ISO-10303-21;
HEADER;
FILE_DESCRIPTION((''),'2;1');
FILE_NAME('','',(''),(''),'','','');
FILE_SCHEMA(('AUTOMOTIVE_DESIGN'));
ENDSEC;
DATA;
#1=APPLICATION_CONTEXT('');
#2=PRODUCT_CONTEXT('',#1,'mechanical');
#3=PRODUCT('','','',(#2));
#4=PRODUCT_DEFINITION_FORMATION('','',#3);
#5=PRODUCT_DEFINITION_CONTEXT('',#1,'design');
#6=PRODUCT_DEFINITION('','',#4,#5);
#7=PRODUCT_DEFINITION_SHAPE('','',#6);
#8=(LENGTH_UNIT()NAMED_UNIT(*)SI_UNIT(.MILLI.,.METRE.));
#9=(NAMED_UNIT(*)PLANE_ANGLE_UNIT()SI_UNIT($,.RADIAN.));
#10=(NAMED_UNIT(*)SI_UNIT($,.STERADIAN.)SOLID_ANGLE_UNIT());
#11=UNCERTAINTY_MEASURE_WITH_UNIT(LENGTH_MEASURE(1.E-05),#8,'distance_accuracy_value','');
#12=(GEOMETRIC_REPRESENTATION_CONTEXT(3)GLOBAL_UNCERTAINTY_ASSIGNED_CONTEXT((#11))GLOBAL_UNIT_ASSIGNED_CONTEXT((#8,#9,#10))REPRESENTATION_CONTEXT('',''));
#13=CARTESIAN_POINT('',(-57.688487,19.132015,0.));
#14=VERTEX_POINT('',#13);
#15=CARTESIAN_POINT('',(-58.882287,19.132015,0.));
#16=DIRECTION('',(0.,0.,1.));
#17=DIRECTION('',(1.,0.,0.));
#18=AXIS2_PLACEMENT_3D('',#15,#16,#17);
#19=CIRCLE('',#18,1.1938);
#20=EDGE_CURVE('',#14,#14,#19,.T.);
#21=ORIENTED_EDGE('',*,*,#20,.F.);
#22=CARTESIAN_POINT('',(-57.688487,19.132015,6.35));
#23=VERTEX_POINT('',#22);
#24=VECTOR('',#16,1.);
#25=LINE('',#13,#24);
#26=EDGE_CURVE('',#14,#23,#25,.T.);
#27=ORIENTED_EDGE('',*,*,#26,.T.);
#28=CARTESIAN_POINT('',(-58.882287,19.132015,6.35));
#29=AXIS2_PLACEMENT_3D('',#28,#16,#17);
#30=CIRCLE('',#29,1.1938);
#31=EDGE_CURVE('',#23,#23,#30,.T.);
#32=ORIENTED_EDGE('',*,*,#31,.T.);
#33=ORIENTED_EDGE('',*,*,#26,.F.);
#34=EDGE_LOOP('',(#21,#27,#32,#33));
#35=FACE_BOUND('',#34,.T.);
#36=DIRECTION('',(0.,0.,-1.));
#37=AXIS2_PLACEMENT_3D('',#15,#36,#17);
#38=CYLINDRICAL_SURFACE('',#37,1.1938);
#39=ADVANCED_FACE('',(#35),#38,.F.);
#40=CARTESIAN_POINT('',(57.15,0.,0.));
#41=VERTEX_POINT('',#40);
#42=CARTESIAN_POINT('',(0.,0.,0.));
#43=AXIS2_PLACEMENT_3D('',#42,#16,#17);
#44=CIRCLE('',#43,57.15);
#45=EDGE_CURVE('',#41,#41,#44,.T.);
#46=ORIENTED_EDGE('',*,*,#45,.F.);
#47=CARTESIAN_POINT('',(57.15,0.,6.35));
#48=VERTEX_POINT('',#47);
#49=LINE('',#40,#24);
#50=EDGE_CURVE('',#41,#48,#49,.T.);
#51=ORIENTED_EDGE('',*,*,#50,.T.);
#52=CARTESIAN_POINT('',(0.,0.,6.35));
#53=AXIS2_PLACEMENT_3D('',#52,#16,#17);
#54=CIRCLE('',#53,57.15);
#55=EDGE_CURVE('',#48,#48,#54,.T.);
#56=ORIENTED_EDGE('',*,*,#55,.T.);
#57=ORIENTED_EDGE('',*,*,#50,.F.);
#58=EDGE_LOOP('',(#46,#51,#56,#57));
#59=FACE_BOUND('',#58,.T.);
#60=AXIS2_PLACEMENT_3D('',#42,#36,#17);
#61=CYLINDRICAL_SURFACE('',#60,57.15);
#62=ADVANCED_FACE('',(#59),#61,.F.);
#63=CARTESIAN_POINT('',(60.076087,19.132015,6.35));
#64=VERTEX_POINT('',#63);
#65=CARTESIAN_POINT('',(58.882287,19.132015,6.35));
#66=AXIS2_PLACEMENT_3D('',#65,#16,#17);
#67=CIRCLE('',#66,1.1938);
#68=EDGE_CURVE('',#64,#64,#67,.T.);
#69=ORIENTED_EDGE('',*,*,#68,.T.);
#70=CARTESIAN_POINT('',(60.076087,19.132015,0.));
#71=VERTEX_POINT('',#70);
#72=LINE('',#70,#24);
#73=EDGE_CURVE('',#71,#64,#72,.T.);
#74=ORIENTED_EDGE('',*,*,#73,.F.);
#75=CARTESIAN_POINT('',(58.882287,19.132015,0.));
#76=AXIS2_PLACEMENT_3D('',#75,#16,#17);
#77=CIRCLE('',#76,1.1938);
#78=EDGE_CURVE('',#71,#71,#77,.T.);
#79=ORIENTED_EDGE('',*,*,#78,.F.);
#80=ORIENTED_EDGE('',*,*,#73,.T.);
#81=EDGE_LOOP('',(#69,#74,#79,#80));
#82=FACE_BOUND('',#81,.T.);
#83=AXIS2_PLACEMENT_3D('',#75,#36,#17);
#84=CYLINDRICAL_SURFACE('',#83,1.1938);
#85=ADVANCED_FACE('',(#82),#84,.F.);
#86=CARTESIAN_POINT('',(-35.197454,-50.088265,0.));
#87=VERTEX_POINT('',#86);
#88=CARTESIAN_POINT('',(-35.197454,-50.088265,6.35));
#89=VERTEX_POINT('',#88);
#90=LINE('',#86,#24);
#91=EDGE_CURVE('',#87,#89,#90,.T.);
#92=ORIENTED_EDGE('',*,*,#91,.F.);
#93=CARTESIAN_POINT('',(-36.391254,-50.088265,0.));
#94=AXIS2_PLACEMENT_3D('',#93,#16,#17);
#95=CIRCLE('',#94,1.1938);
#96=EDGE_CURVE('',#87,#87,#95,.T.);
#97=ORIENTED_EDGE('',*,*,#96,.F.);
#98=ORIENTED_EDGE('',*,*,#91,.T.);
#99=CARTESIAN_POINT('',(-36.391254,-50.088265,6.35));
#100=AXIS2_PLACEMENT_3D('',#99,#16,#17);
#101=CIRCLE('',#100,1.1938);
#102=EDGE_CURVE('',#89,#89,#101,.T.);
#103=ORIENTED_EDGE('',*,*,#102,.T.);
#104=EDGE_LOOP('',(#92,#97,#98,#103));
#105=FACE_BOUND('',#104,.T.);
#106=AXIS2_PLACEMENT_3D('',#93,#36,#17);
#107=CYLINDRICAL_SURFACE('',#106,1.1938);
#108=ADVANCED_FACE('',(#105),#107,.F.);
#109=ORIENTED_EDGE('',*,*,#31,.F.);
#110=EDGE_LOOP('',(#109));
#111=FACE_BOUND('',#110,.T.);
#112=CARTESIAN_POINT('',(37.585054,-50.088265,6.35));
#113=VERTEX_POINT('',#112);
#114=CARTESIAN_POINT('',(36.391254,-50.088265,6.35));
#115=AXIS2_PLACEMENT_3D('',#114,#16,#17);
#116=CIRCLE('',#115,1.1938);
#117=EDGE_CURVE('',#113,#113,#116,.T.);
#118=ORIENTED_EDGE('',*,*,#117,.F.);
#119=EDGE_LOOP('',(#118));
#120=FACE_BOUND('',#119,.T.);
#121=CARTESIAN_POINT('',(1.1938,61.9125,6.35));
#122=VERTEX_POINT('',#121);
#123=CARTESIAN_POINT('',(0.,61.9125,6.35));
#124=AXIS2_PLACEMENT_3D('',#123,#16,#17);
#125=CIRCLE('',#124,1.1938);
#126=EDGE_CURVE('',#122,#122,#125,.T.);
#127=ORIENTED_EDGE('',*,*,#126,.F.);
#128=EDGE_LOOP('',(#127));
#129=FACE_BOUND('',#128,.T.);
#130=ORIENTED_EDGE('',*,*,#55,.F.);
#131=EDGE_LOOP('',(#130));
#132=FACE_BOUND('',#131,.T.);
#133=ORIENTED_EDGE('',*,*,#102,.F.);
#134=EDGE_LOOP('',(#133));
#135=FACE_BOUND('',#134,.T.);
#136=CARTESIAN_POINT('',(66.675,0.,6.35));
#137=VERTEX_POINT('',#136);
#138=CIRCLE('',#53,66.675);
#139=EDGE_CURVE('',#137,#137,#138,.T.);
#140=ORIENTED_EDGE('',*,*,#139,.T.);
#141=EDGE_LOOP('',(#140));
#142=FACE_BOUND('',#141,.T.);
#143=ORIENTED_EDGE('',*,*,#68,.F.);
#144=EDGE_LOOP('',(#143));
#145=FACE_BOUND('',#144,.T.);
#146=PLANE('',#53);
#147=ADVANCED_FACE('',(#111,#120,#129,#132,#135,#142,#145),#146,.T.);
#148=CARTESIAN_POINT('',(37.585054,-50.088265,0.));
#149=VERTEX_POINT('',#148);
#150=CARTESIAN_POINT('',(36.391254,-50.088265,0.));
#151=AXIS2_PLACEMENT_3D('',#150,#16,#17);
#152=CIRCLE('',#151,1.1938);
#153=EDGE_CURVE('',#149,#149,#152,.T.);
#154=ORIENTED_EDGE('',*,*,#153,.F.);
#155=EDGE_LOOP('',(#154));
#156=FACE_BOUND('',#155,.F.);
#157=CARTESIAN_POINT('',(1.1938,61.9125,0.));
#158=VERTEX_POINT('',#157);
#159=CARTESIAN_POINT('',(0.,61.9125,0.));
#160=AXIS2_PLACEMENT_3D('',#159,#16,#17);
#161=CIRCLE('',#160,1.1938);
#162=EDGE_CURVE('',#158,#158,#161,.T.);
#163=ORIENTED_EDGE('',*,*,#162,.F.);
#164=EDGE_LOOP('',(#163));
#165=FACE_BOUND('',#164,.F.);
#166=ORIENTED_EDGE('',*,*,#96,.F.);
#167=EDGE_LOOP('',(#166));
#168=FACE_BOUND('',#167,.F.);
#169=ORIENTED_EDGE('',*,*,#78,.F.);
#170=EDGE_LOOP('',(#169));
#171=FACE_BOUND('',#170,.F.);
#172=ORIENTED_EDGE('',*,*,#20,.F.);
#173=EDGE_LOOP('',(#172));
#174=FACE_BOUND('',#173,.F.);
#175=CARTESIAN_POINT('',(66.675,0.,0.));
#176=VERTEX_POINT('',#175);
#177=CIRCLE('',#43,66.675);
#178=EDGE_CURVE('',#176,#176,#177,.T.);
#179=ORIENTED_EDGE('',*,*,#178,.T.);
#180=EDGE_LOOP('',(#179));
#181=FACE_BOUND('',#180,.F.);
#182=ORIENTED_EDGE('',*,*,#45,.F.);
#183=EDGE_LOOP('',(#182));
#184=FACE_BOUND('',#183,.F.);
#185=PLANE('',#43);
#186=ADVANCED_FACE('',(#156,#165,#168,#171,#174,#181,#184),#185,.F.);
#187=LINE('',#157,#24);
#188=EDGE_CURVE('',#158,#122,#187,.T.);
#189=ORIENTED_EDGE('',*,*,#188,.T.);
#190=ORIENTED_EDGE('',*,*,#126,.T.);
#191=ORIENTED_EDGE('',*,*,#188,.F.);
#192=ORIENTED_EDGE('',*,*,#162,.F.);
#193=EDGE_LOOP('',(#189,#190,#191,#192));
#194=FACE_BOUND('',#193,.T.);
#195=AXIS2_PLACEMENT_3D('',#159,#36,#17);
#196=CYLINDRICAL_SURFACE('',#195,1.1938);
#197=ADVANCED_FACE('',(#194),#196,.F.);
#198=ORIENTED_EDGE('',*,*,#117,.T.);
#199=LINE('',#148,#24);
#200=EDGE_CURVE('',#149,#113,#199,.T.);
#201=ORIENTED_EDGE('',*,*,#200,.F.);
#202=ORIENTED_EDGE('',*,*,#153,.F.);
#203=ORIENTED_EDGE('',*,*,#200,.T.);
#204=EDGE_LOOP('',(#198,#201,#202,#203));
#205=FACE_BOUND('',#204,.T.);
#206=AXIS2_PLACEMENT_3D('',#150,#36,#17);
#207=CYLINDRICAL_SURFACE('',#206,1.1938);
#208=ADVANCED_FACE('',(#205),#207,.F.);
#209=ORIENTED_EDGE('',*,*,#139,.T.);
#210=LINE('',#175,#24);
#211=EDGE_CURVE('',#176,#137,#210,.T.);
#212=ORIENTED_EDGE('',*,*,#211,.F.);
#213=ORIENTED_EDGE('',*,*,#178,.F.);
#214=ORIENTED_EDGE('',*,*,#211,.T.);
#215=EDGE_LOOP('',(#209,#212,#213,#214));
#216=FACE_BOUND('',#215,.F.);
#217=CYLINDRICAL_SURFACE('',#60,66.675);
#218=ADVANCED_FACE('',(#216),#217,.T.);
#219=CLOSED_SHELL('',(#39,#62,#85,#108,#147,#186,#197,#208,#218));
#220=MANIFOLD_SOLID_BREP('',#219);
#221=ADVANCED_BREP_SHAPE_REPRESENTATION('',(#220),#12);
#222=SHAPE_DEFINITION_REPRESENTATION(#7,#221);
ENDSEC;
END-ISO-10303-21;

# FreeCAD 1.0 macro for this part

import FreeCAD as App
import Part
import Sketcher
Q = App.Units.Quantity

doc = App.newDocument("Part")
params = doc.addObject("Spreadsheet::Sheet", "Params")
for row, (alias, value) in enumerate([
    ("sketch1_diameter", "4.5 in"),
    ("sketch1_diameter2", "5.25 in"),
    ("sketch1_diameter3", "0.094 in"),
    ("pad1_length", "0.25 in"),
], start=1):
    params.set(f"A{row}", alias)
    params.set(f"B{row}", "=" + value)
    params.setAlias(f"B{row}", alias)

body = doc.addObject("PartDesign::Body", "Body")

# Sketch on XY plane
sketch1 = body.newObject("Sketcher::SketchObject", "Sketch")
sketch1.AttachmentSupport = (doc.getObject("XY_Plane"), [""])
sketch1.MapMode = "FlatFace"
sketch1.addGeometry(Part.Circle(App.Vector(0, 0, 0), App.Vector(0, 0, 1), 66.7), False)
sketch1.addGeometry(Part.Circle(App.Vector(-36.4, -50.1, 0), App.Vector(0, 0, 1), 1.2), False)
sketch1.addGeometry(Part.Circle(App.Vector(0, 0, 0), App.Vector(0, 0, 1), 57.1), False)
sketch1.addGeometry(Part.Circle(App.Vector(36.4, -50.1, 0), App.Vector(0, 0, 1), 1.2), False)
sketch1.addGeometry(Part.Circle(App.Vector(-58.9, 19.1, 0), App.Vector(0, 0, 1), 1.2), False)
sketch1.addGeometry(Part.Circle(App.Vector(0, 61.9, 0), App.Vector(0, 0, 1), 1.2), False)
sketch1.addGeometry(Part.Circle(App.Vector(58.9, 19.1, 0), App.Vector(0, 0, 1), 1.2), False)
sketch1.addConstraint(Sketcher.Constraint("Coincident", 0, 3, -1, 1))
sketch1.addConstraint(Sketcher.Constraint("Coincident", 2, 3, -1, 1))
sketch1.addConstraint(Sketcher.Constraint("Equal", 1, 3))
sketch1.addConstraint(Sketcher.Constraint("Equal", 3, 4))
sketch1.addConstraint(Sketcher.Constraint("Equal", 4, 5))
sketch1.addConstraint(Sketcher.Constraint("Equal", 5, 6))
sketch1.addConstraint(Sketcher.Constraint("Symmetric", 1, 3, 3, 3, -2))
sketch1.addConstraint(Sketcher.Constraint("Symmetric", 4, 3, 6, 3, -2))
sketch1.addConstraint(Sketcher.Constraint("PointOnObject", 5, 3, -2))
sketch1.addConstraint(Sketcher.Constraint("Diameter", 2, Q("4.5 in")))
sketch1.addConstraint(Sketcher.Constraint("Diameter", 0, Q("5.25 in")))
sketch1.addConstraint(Sketcher.Constraint("Diameter", 1, Q("0.094 in")))
sketch1.addConstraint(Sketcher.Constraint("DistanceY", -1, 1, 5, 3, Q("2.4375 in")))
sketch1.addConstraint(Sketcher.Constraint("DistanceX", 1, 3, 3, 3, Q("72.782508 mm")))
sketch1.addConstraint(Sketcher.Constraint("DistanceY", 1, 3, 4, 3, Q("69.22028 mm")))
sketch1.addConstraint(Sketcher.Constraint("DistanceX", 4, 3, 3, 3, Q("95.273541 mm")))
sketch1.addConstraint(Sketcher.Constraint("DistanceY", 1, 3, -1, 1, Q("50.088265 mm")))
sketch1.setExpression("Constraints[9]", "Params.sketch1_diameter")
sketch1.setExpression("Constraints[10]", "Params.sketch1_diameter2")
sketch1.setExpression("Constraints[11]", "Params.sketch1_diameter3")
pad1 = body.newObject("PartDesign::Pad", "Pad")
pad1.Profile = sketch1
pad1.setExpression("Length", "Params.pad1_length")

doc.recompute()
